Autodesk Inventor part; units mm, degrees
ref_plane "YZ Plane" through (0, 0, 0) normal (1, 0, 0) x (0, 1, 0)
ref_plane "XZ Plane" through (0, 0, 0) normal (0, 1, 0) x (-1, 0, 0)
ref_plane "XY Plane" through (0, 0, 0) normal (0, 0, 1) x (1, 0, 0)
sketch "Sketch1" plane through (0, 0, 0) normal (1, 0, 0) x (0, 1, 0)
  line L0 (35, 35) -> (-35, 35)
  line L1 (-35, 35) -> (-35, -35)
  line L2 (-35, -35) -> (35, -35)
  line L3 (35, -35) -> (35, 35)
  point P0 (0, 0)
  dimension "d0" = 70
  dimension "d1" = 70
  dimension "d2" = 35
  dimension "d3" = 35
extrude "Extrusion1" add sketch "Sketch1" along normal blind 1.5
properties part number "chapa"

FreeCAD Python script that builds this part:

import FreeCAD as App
import Part
import Sketcher

V = App.Vector


def add_polygon(sketch, points):
    """Adds a closed chain of lines whose ends are joined by coincident constraints."""
    first, n = sketch.GeometryCount, len(points)
    for a, b in zip(points, points[1:] + points[:1]):
        sketch.addGeometry(Part.LineSegment(App.Vector(*a, 0), App.Vector(*b, 0)), False)
    for i in range(n):
        sketch.addConstraint(Sketcher.Constraint("Coincident", first + i, 2, first + (i + 1) % n, 1))

doc = App.newDocument("Part")
body = doc.addObject("PartDesign::Body", "Body")

sketch1 = doc.addObject("Sketcher::SketchObject", "Sketch")
body.addObject(sketch1)
sketch1.AttachmentSupport = (doc.YZ_Plane, [""])
sketch1.MapMode = "FlatFace"
add_polygon(sketch1, [(35, -35), (35, 35), (-35, 35), (-35, -35)])
sketch1.addConstraint(Sketcher.Constraint("Vertical", 0))
sketch1.addConstraint(Sketcher.Constraint("Horizontal", 1))
sketch1.addConstraint(Sketcher.Constraint("Vertical", 2))
sketch1.addConstraint(Sketcher.Constraint("Horizontal", 3))
sketch1.addConstraint(Sketcher.Constraint("Symmetric", 0, 2, 2, 2, -1, 1))
sketch1.addConstraint(Sketcher.Constraint("Equal", 3, 0))
sketch1.addConstraint(Sketcher.Constraint("DistanceX", 1, 2, 1, 1, 70.0))
pad1 = doc.addObject("PartDesign::Pad", "Pad")
body.addObject(pad1)
pad1.Profile = sketch1
pad1.Length = 1.5

doc.recompute()
